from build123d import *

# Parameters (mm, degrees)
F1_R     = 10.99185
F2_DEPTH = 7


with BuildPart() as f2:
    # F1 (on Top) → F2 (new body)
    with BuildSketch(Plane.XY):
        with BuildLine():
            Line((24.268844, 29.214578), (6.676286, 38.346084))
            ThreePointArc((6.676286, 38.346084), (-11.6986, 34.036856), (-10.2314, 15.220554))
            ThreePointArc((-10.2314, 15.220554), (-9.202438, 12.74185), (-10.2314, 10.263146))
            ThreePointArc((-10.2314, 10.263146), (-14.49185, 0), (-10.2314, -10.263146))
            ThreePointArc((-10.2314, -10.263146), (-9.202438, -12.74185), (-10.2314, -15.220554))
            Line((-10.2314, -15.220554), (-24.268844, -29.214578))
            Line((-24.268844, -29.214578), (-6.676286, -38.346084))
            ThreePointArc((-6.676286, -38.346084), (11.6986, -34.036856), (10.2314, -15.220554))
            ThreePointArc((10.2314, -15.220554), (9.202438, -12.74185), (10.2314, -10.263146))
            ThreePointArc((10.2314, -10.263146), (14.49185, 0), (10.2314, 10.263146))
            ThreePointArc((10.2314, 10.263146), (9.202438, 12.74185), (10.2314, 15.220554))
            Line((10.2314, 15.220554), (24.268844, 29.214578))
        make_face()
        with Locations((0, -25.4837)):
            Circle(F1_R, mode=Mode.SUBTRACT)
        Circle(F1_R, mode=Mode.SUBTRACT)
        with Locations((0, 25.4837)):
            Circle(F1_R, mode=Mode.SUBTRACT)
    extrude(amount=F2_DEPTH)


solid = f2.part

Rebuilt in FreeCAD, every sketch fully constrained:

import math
import FreeCAD as App
import Part
import Sketcher
from FreeCAD import Vector

doc = App.newDocument("Part")
body = doc.addObject("PartDesign::Body", "Body")

# Sketch on XY plane
sketch1 = body.newObject("Sketcher::SketchObject", "Sketch")
sketch1.AttachmentSupport = (doc.getObject("XY_Plane"), [""])
sketch1.MapMode = "FlatFace"
sketch1.addGeometry(Part.LineSegment(Vector(24.3, 29.2, 0), Vector(6.7, 38.3, 0)), False)
sketch1.addGeometry(Part.ArcOfCircle(Part.Circle(Vector(0, 25.5, 0), Vector(0, 0, 1), 14.5), math.radians(63), math.radians(225)), False)
sketch1.addGeometry(Part.ArcOfCircle(Part.Circle(Vector(-12.7, 12.7, 0), Vector(0, 0, 1), 3.5), math.radians(-45), math.radians(45)), False)
sketch1.addGeometry(Part.ArcOfCircle(Part.Circle(Vector(0, 0, 0), Vector(0, 0, 1), 14.5), math.radians(135), math.radians(225)), False)
sketch1.addGeometry(Part.ArcOfCircle(Part.Circle(Vector(-12.7, -12.7, 0), Vector(0, 0, 1), 3.5), math.radians(-45), math.radians(45)), False)
sketch1.addGeometry(Part.LineSegment(Vector(-10.2, -15.2, 0), Vector(-24.3, -29.2, 0)), False)
sketch1.addGeometry(Part.LineSegment(Vector(-24.3, -29.2, 0), Vector(-6.7, -38.3, 0)), False)
sketch1.addGeometry(Part.ArcOfCircle(Part.Circle(Vector(0, -25.5, 0), Vector(0, 0, 1), 14.5), math.radians(-117), math.radians(45)), False)
sketch1.addGeometry(Part.ArcOfCircle(Part.Circle(Vector(12.7, -12.7, 0), Vector(0, 0, 1), 3.5), math.radians(135), math.radians(225)), False)
sketch1.addGeometry(Part.ArcOfCircle(Part.Circle(Vector(0, 0, 0), Vector(0, 0, 1), 14.5), math.radians(-45), math.radians(45)), False)
sketch1.addGeometry(Part.ArcOfCircle(Part.Circle(Vector(12.7, 12.7, 0), Vector(0, 0, 1), 3.5), math.radians(135), math.radians(225)), False)
sketch1.addGeometry(Part.LineSegment(Vector(10.2, 15.2, 0), Vector(24.3, 29.2, 0)), False)
sketch1.addGeometry(Part.Circle(Vector(0, -25.5, 0), Vector(0, 0, 1), 11), False)
sketch1.addGeometry(Part.Circle(Vector(0, 0, 0), Vector(0, 0, 1), 11), False)
sketch1.addGeometry(Part.Circle(Vector(0, 25.5, 0), Vector(0, 0, 1), 11), False)
sketch1.addConstraint(Sketcher.Constraint("Tangent", 0, 2, 1, 1))
sketch1.addConstraint(Sketcher.Constraint("Tangent", 1, 2, 2, 2))
sketch1.addConstraint(Sketcher.Constraint("Tangent", 2, 1, 3, 1))
sketch1.addConstraint(Sketcher.Constraint("Tangent", 3, 2, 4, 2))
sketch1.addConstraint(Sketcher.Constraint("Tangent", 4, 1, 5, 1))
sketch1.addConstraint(Sketcher.Constraint("Coincident", 5, 2, 6, 1))
sketch1.addConstraint(Sketcher.Constraint("Tangent", 6, 2, 7, 1))
sketch1.addConstraint(Sketcher.Constraint("Tangent", 7, 2, 8, 2))
sketch1.addConstraint(Sketcher.Constraint("Tangent", 8, 1, 9, 1))
sketch1.addConstraint(Sketcher.Constraint("Tangent", 9, 2, 10, 2))
sketch1.addConstraint(Sketcher.Constraint("Tangent", 10, 1, 11, 1))
sketch1.addConstraint(Sketcher.Constraint("Coincident", 11, 2, 0, 1))
sketch1.addConstraint(Sketcher.Constraint("Coincident", 3, 3, -1, 1))
sketch1.addConstraint(Sketcher.Constraint("Coincident", 9, 3, -1, 1))
sketch1.addConstraint(Sketcher.Constraint("Coincident", 13, 3, -1, 1))
sketch1.addConstraint(Sketcher.Constraint("Coincident", 12, 3, 7, 3))
sketch1.addConstraint(Sketcher.Constraint("Coincident", 14, 3, 1, 3))
sketch1.addConstraint(Sketcher.Constraint("Equal", 1, 3))
sketch1.addConstraint(Sketcher.Constraint("Equal", 2, 4))
sketch1.addConstraint(Sketcher.Constraint("Equal", 3, 7))
sketch1.addConstraint(Sketcher.Constraint("Equal", 4, 8))
sketch1.addConstraint(Sketcher.Constraint("Equal", 7, 9))
sketch1.addConstraint(Sketcher.Constraint("Equal", 8, 10))
sketch1.addConstraint(Sketcher.Constraint("Equal", 12, 13))
sketch1.addConstraint(Sketcher.Constraint("Equal", 13, 14))
sketch1.addConstraint(Sketcher.Constraint("Symmetric", 1, 3, 7, 3, -1, 1))
sketch1.addConstraint(Sketcher.Constraint("Symmetric", 4, 1, 10, 1, -1, 1))
sketch1.addConstraint(Sketcher.Constraint("Symmetric", 4, 1, 7, 2, -2))
sketch1.addConstraint(Sketcher.Constraint("PointOnObject", 1, 3, -2))
sketch1.addConstraint(Sketcher.Constraint("Parallel", 0, 6))
sketch1.addConstraint(Sketcher.Constraint("Radius", 2, 3.500001))
sketch1.addConstraint(Sketcher.Constraint("Diameter", 12, 21.9837))
sketch1.addConstraint(Sketcher.Constraint("Radius", 1, 14.49185))
sketch1.addConstraint(Sketcher.Constraint("DistanceY", -1, 1, 1, 3, 25.4837))
sketch1.addConstraint(Sketcher.Constraint("DistanceY", 5, 2, 4, 3, 16.472728))
pad1 = body.newObject("PartDesign::Pad", "Pad")
pad1.Profile = sketch1
pad1.Length = 7

doc.recompute()
